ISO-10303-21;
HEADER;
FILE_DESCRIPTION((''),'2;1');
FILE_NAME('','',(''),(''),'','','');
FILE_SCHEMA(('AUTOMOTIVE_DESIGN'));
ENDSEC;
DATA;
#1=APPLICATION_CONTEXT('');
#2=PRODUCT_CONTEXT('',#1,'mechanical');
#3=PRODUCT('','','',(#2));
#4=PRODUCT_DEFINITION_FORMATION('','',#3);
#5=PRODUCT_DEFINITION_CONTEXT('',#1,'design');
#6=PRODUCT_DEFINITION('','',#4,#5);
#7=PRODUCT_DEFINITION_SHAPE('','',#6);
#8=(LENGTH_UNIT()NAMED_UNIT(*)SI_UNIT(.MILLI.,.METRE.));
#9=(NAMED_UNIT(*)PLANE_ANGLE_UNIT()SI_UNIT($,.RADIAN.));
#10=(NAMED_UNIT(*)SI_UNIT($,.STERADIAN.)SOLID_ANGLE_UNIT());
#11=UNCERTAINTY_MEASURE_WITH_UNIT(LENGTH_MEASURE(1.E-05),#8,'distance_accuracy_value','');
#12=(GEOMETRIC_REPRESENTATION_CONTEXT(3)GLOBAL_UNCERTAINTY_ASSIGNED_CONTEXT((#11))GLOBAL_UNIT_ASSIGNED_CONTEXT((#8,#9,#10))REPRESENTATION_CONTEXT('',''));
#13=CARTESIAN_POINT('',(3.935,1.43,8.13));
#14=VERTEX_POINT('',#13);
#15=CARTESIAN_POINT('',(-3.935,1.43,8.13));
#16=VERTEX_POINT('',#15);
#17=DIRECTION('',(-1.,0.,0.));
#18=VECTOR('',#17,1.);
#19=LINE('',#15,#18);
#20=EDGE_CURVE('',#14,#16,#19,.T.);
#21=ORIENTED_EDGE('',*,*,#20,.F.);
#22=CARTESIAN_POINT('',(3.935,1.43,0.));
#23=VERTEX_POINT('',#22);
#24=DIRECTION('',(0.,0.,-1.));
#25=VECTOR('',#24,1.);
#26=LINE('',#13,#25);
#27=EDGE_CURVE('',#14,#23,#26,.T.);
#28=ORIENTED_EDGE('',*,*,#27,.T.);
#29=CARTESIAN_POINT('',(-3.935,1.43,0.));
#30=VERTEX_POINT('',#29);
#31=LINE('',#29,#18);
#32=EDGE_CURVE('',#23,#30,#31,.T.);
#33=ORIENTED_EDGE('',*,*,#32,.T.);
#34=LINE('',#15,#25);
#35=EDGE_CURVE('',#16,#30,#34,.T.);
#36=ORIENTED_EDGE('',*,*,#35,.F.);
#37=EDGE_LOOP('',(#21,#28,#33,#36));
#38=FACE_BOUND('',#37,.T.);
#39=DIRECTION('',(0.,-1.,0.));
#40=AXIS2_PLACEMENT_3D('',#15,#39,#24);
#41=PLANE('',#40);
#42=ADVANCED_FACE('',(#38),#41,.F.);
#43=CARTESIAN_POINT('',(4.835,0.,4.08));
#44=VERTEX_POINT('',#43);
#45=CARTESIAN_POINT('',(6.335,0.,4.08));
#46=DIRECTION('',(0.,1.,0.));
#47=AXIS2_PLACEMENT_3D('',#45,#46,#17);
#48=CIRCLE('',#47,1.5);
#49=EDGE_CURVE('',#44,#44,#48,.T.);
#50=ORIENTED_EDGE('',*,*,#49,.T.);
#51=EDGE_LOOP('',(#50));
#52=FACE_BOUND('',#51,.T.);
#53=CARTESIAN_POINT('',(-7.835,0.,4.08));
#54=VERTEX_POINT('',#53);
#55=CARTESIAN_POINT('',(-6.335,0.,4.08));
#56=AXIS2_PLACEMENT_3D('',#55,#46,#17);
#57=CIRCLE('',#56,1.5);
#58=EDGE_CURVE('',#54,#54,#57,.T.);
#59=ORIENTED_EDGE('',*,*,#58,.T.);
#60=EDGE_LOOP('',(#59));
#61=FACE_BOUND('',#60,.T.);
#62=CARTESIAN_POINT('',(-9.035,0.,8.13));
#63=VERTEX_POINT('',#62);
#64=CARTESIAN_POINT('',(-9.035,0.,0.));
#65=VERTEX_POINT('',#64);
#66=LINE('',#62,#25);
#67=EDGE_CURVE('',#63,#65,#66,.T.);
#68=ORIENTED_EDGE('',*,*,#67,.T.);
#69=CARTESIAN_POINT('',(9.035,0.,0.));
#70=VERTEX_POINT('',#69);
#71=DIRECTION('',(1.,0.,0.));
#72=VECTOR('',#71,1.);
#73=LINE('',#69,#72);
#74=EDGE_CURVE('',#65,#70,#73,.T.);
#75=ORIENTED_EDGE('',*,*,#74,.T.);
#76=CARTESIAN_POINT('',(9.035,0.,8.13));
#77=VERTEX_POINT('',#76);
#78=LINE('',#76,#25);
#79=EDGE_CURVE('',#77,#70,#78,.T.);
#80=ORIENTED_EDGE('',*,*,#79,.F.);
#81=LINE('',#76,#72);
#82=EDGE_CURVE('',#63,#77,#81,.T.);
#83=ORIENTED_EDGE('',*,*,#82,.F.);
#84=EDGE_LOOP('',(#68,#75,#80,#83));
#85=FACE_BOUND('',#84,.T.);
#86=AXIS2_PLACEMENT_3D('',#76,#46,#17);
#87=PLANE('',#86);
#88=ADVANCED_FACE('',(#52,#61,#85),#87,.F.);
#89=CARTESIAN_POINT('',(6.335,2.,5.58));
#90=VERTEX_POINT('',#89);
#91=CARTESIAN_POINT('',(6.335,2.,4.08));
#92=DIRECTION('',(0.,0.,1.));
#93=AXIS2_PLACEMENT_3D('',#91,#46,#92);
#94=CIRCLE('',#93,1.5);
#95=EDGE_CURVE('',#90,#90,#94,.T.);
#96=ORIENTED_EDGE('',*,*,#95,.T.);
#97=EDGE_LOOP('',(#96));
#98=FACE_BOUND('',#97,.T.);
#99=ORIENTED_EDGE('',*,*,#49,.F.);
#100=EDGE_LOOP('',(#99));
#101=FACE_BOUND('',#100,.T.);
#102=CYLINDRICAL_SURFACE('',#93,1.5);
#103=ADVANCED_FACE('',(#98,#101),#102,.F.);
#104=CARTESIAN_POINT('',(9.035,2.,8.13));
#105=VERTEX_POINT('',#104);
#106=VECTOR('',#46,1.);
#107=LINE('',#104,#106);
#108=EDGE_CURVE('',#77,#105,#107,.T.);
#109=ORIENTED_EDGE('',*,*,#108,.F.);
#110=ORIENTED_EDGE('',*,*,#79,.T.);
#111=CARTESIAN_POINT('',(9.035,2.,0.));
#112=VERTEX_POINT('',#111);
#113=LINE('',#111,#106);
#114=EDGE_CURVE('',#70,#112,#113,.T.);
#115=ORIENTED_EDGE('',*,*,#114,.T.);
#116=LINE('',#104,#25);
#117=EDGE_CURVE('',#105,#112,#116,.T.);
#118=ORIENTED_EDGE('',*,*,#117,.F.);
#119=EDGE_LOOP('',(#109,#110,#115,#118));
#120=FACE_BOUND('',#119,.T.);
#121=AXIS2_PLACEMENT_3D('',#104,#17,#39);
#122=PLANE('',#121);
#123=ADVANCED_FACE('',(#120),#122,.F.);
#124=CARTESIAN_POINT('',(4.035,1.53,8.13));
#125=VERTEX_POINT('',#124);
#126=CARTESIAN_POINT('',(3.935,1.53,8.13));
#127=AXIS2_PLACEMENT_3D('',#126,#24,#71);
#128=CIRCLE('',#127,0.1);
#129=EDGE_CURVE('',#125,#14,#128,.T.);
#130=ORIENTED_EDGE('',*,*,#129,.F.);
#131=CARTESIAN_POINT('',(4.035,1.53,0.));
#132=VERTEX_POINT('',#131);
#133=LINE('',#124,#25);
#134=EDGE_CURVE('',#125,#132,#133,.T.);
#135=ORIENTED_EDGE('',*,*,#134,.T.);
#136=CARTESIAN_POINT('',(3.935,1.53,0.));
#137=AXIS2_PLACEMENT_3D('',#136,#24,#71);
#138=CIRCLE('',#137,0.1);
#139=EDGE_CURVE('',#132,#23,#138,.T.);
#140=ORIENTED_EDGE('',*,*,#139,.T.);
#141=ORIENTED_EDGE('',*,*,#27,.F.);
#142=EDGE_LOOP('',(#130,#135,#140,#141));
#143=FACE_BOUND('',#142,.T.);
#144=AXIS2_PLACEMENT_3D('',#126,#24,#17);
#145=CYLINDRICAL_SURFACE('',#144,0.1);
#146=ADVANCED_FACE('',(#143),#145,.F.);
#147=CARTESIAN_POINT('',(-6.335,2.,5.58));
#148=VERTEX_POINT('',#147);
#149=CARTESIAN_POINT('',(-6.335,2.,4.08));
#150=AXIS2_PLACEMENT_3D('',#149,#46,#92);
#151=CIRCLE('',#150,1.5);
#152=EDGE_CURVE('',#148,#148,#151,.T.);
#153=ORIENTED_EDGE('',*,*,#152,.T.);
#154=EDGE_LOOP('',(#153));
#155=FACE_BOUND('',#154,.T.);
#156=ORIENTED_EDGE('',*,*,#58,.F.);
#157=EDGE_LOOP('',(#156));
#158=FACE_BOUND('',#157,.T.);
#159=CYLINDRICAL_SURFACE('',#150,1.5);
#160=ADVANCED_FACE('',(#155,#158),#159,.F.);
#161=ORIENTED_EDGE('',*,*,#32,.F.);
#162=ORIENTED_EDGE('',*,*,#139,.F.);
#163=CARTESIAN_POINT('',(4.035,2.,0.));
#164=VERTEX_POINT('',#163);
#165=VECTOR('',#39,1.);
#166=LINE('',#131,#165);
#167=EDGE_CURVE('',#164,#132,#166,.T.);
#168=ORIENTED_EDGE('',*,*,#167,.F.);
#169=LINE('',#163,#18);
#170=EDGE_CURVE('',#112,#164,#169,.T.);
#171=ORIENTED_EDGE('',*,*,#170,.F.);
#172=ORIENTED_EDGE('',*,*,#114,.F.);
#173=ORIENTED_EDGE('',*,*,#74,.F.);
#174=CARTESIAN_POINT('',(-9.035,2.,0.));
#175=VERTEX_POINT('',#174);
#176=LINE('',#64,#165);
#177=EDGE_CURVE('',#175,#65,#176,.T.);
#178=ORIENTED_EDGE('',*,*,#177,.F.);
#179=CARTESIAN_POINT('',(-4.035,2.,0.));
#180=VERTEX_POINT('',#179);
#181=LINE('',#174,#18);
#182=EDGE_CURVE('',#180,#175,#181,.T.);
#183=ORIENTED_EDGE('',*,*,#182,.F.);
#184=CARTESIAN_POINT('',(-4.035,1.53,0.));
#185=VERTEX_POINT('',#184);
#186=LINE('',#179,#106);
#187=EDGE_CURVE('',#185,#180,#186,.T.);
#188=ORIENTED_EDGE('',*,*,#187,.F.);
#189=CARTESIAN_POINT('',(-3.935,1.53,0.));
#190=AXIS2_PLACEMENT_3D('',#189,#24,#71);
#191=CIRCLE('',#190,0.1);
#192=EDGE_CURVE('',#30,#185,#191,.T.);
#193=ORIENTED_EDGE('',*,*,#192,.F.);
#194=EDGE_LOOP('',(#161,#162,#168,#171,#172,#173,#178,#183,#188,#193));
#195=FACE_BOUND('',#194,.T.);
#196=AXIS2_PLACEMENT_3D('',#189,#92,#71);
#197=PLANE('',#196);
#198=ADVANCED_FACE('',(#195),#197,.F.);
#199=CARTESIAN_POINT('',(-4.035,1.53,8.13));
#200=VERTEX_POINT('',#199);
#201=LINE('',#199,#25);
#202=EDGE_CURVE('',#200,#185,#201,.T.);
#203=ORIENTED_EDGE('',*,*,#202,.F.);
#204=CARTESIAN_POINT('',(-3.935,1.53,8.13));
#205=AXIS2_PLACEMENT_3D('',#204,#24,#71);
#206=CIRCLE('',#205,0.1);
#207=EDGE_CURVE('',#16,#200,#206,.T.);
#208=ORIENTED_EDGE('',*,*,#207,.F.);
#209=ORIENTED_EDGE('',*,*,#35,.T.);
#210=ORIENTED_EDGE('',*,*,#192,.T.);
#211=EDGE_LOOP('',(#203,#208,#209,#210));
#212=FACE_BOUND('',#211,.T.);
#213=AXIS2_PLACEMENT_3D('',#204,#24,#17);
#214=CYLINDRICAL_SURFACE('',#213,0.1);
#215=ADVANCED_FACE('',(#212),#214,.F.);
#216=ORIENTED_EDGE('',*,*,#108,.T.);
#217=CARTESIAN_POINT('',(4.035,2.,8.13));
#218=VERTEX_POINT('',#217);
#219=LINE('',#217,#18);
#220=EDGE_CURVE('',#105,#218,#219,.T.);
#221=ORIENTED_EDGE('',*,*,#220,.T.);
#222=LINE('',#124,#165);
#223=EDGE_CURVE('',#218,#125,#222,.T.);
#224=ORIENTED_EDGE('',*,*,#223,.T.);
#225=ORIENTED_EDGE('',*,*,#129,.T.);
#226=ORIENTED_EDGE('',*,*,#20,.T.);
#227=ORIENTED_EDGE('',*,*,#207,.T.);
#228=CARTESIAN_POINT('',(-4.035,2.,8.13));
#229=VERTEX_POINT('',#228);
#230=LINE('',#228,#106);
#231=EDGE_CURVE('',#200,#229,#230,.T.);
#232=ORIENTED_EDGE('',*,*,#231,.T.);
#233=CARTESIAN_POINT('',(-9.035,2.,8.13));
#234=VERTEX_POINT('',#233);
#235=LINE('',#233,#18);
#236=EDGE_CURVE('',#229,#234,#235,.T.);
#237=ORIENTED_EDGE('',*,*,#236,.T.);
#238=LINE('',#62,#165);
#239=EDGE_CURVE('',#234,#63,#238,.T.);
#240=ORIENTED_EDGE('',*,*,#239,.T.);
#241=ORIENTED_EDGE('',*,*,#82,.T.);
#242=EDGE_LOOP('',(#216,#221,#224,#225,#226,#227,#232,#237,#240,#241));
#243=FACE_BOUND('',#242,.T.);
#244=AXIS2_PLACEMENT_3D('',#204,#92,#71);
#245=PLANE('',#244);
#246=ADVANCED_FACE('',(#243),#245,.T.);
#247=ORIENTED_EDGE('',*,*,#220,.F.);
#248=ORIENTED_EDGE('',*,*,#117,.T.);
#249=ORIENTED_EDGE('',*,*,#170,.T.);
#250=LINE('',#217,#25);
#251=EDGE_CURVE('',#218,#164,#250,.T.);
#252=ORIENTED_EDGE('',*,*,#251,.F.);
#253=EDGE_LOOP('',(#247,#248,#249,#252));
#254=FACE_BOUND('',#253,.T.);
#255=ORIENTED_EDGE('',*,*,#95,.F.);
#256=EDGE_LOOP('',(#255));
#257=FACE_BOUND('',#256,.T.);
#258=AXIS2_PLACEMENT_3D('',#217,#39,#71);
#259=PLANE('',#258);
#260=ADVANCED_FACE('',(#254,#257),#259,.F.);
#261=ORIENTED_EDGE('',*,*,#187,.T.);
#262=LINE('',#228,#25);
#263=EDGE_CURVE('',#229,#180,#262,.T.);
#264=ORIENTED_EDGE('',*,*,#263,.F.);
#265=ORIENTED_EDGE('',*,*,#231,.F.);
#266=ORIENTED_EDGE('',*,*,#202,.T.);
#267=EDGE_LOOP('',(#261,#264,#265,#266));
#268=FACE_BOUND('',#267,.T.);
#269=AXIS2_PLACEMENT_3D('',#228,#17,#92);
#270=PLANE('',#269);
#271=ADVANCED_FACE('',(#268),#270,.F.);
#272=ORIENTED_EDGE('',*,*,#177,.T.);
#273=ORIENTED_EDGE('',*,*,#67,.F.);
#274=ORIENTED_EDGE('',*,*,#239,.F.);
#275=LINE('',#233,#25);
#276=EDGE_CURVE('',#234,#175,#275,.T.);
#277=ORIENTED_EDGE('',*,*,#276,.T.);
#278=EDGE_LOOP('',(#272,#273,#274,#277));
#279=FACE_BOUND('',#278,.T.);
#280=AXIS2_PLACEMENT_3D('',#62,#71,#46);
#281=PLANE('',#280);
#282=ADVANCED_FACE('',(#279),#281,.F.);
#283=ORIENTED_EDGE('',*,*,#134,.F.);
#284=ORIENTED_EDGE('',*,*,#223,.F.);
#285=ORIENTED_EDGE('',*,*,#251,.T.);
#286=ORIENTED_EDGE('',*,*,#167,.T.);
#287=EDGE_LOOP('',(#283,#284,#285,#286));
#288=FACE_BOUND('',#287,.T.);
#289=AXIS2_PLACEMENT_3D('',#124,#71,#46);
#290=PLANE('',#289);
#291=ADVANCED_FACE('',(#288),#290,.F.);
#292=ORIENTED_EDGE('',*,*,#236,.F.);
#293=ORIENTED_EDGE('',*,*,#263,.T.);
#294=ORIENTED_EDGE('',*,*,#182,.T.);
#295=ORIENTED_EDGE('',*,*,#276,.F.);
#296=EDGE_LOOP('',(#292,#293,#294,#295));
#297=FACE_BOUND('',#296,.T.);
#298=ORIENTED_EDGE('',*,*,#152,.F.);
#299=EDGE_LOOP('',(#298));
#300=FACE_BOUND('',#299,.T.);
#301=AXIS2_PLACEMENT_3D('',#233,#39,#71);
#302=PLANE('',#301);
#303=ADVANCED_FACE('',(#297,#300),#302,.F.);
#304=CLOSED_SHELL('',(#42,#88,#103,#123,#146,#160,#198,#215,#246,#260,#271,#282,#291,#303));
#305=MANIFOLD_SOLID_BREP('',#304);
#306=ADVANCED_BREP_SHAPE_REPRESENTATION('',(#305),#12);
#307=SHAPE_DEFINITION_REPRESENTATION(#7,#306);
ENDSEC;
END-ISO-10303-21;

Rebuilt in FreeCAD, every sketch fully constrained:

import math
import FreeCAD as App
import Part
import Sketcher
from FreeCAD import Vector
Q = App.Units.Quantity

doc = App.newDocument("Part")
body = doc.addObject("PartDesign::Body", "Body")

# Sketch on XY plane
sketch1 = doc.addObject("Sketcher::SketchObject", "Sketch")
body.addObject(sketch1)
sketch1.AttachmentSupport = (doc.XY_Plane, [""])
sketch1.MapMode = "FlatFace"
sketch1.addGeometry([
    Part.LineSegment(Vector(-9.04, 2, 0), Vector(-9.04, 0, 0)),  # 0
    Part.LineSegment(Vector(-9.04, 0, 0), Vector(9.04, 0, 0)),  # 1
    Part.LineSegment(Vector(9.04, 0, 0), Vector(9.04, 2, 0)),  # 2
    Part.LineSegment(Vector(9.04, 2, 0), Vector(4.04, 2, 0)),  # 3
    Part.LineSegment(Vector(4.04, 2, 0), Vector(4.04, 1.53, 0)),  # 4
    Part.ArcOfCircle(Part.Circle(Vector(3.94, 1.53, 0), Vector(0, 0, 1), 0.1), math.radians(-90), math.radians(0)),  # 5
    Part.LineSegment(Vector(3.94, 1.43, 0), Vector(-3.94, 1.43, 0)),  # 6
    Part.ArcOfCircle(Part.Circle(Vector(-3.94, 1.53, 0), Vector(0, 0, 1), 0.1), math.radians(180), math.radians(270)),  # 7
    Part.LineSegment(Vector(-4.04, 1.53, 0), Vector(-4.04, 2, 0)),  # 8
    Part.LineSegment(Vector(-4.04, 2, 0), Vector(-9.04, 2, 0)),  # 9
], False)
sketch1.addConstraint([
    Sketcher.Constraint("Coincident", 0, 2, 1, 1),
    Sketcher.Constraint("Coincident", 1, 2, 2, 1),
    Sketcher.Constraint("Coincident", 2, 2, 3, 1),
    Sketcher.Constraint("Coincident", 3, 2, 4, 1),
    Sketcher.Constraint("Tangent", 4, 2, 5, 2),
    Sketcher.Constraint("Tangent", 5, 1, 6, 1),
    Sketcher.Constraint("Tangent", 6, 2, 7, 2),
    Sketcher.Constraint("Tangent", 7, 1, 8, 1),
    Sketcher.Constraint("Coincident", 8, 2, 9, 1),
    Sketcher.Constraint("Coincident", 9, 2, 0, 1),
    Sketcher.Constraint("Vertical", 0),
    Sketcher.Constraint("Horizontal", 1),
    Sketcher.Constraint("Vertical", 2),
    Sketcher.Constraint("Horizontal", 3),
    Sketcher.Constraint("Vertical", 4),
    Sketcher.Constraint("Horizontal", 6),
    Sketcher.Constraint("Vertical", 8),
    Sketcher.Constraint("Horizontal", 9),
    Sketcher.Constraint("Equal", 5, 7),
    Sketcher.Constraint("Symmetric", 0, 2, 1, 2, -1, 1),
    Sketcher.Constraint("Symmetric", 3, 2, 8, 2, -2),
    Sketcher.Constraint("Radius", 5, Q("0.1 mm")),
    Sketcher.Constraint("DistanceX", 3, 2, 3, 1, Q("5 mm")),
    Sketcher.Constraint("DistanceY", 0, 2, 0, 1, Q("2 mm")),
    Sketcher.Constraint("DistanceX", 1, 1, 1, 2, Q("18.07 mm")),
    Sketcher.Constraint("DistanceY", 4, 2, 4, 1, Q("0.47 mm")),
])
pad1 = doc.addObject("PartDesign::Pad", "Pad")
body.addObject(pad1)
pad1.Profile = sketch1
pad1.Length = 8.13

# Sketch on XZ plane
sketch2 = doc.addObject("Sketcher::SketchObject", "Sketch001")
body.addObject(sketch2)
sketch2.AttachmentSupport = (doc.XZ_Plane, [""])
sketch2.MapMode = "FlatFace"
sketch2.AttachmentOffset = App.Placement(Vector(0, 0, -2), App.Rotation())
sketch2.addGeometry([
    Part.Circle(Vector(6.3, 4.1, 0), Vector(0, 0, 1), 1.5),
    Part.Circle(Vector(-6.3, 4.1, 0), Vector(0, 0, 1), 1.5),
], False)
sketch2.addConstraint([
    Sketcher.Constraint("Equal", 0, 1),
    Sketcher.Constraint("Symmetric", 0, 3, 1, 3, -2),
    Sketcher.Constraint("Diameter", 0, Q("3 mm")),
    Sketcher.Constraint("DistanceY", -1, 1, 0, 3, Q("4.08 mm")),
    Sketcher.Constraint("DistanceX", 1, 3, 0, 3, Q("12.67 mm")),
])
doc.recompute()
hole = doc.addObject("PartDesign::Hole", "Hole")
body.addObject(hole)
hole.Profile = sketch2
hole.ThreadType = "None"
hole.Diameter = 3
hole.DepthType = "Dimension"
hole.Depth = 35
hole.DrillPoint = "Angled"
hole.DrillPointAngle = 118
hole.Reversed = True

doc.recompute()
